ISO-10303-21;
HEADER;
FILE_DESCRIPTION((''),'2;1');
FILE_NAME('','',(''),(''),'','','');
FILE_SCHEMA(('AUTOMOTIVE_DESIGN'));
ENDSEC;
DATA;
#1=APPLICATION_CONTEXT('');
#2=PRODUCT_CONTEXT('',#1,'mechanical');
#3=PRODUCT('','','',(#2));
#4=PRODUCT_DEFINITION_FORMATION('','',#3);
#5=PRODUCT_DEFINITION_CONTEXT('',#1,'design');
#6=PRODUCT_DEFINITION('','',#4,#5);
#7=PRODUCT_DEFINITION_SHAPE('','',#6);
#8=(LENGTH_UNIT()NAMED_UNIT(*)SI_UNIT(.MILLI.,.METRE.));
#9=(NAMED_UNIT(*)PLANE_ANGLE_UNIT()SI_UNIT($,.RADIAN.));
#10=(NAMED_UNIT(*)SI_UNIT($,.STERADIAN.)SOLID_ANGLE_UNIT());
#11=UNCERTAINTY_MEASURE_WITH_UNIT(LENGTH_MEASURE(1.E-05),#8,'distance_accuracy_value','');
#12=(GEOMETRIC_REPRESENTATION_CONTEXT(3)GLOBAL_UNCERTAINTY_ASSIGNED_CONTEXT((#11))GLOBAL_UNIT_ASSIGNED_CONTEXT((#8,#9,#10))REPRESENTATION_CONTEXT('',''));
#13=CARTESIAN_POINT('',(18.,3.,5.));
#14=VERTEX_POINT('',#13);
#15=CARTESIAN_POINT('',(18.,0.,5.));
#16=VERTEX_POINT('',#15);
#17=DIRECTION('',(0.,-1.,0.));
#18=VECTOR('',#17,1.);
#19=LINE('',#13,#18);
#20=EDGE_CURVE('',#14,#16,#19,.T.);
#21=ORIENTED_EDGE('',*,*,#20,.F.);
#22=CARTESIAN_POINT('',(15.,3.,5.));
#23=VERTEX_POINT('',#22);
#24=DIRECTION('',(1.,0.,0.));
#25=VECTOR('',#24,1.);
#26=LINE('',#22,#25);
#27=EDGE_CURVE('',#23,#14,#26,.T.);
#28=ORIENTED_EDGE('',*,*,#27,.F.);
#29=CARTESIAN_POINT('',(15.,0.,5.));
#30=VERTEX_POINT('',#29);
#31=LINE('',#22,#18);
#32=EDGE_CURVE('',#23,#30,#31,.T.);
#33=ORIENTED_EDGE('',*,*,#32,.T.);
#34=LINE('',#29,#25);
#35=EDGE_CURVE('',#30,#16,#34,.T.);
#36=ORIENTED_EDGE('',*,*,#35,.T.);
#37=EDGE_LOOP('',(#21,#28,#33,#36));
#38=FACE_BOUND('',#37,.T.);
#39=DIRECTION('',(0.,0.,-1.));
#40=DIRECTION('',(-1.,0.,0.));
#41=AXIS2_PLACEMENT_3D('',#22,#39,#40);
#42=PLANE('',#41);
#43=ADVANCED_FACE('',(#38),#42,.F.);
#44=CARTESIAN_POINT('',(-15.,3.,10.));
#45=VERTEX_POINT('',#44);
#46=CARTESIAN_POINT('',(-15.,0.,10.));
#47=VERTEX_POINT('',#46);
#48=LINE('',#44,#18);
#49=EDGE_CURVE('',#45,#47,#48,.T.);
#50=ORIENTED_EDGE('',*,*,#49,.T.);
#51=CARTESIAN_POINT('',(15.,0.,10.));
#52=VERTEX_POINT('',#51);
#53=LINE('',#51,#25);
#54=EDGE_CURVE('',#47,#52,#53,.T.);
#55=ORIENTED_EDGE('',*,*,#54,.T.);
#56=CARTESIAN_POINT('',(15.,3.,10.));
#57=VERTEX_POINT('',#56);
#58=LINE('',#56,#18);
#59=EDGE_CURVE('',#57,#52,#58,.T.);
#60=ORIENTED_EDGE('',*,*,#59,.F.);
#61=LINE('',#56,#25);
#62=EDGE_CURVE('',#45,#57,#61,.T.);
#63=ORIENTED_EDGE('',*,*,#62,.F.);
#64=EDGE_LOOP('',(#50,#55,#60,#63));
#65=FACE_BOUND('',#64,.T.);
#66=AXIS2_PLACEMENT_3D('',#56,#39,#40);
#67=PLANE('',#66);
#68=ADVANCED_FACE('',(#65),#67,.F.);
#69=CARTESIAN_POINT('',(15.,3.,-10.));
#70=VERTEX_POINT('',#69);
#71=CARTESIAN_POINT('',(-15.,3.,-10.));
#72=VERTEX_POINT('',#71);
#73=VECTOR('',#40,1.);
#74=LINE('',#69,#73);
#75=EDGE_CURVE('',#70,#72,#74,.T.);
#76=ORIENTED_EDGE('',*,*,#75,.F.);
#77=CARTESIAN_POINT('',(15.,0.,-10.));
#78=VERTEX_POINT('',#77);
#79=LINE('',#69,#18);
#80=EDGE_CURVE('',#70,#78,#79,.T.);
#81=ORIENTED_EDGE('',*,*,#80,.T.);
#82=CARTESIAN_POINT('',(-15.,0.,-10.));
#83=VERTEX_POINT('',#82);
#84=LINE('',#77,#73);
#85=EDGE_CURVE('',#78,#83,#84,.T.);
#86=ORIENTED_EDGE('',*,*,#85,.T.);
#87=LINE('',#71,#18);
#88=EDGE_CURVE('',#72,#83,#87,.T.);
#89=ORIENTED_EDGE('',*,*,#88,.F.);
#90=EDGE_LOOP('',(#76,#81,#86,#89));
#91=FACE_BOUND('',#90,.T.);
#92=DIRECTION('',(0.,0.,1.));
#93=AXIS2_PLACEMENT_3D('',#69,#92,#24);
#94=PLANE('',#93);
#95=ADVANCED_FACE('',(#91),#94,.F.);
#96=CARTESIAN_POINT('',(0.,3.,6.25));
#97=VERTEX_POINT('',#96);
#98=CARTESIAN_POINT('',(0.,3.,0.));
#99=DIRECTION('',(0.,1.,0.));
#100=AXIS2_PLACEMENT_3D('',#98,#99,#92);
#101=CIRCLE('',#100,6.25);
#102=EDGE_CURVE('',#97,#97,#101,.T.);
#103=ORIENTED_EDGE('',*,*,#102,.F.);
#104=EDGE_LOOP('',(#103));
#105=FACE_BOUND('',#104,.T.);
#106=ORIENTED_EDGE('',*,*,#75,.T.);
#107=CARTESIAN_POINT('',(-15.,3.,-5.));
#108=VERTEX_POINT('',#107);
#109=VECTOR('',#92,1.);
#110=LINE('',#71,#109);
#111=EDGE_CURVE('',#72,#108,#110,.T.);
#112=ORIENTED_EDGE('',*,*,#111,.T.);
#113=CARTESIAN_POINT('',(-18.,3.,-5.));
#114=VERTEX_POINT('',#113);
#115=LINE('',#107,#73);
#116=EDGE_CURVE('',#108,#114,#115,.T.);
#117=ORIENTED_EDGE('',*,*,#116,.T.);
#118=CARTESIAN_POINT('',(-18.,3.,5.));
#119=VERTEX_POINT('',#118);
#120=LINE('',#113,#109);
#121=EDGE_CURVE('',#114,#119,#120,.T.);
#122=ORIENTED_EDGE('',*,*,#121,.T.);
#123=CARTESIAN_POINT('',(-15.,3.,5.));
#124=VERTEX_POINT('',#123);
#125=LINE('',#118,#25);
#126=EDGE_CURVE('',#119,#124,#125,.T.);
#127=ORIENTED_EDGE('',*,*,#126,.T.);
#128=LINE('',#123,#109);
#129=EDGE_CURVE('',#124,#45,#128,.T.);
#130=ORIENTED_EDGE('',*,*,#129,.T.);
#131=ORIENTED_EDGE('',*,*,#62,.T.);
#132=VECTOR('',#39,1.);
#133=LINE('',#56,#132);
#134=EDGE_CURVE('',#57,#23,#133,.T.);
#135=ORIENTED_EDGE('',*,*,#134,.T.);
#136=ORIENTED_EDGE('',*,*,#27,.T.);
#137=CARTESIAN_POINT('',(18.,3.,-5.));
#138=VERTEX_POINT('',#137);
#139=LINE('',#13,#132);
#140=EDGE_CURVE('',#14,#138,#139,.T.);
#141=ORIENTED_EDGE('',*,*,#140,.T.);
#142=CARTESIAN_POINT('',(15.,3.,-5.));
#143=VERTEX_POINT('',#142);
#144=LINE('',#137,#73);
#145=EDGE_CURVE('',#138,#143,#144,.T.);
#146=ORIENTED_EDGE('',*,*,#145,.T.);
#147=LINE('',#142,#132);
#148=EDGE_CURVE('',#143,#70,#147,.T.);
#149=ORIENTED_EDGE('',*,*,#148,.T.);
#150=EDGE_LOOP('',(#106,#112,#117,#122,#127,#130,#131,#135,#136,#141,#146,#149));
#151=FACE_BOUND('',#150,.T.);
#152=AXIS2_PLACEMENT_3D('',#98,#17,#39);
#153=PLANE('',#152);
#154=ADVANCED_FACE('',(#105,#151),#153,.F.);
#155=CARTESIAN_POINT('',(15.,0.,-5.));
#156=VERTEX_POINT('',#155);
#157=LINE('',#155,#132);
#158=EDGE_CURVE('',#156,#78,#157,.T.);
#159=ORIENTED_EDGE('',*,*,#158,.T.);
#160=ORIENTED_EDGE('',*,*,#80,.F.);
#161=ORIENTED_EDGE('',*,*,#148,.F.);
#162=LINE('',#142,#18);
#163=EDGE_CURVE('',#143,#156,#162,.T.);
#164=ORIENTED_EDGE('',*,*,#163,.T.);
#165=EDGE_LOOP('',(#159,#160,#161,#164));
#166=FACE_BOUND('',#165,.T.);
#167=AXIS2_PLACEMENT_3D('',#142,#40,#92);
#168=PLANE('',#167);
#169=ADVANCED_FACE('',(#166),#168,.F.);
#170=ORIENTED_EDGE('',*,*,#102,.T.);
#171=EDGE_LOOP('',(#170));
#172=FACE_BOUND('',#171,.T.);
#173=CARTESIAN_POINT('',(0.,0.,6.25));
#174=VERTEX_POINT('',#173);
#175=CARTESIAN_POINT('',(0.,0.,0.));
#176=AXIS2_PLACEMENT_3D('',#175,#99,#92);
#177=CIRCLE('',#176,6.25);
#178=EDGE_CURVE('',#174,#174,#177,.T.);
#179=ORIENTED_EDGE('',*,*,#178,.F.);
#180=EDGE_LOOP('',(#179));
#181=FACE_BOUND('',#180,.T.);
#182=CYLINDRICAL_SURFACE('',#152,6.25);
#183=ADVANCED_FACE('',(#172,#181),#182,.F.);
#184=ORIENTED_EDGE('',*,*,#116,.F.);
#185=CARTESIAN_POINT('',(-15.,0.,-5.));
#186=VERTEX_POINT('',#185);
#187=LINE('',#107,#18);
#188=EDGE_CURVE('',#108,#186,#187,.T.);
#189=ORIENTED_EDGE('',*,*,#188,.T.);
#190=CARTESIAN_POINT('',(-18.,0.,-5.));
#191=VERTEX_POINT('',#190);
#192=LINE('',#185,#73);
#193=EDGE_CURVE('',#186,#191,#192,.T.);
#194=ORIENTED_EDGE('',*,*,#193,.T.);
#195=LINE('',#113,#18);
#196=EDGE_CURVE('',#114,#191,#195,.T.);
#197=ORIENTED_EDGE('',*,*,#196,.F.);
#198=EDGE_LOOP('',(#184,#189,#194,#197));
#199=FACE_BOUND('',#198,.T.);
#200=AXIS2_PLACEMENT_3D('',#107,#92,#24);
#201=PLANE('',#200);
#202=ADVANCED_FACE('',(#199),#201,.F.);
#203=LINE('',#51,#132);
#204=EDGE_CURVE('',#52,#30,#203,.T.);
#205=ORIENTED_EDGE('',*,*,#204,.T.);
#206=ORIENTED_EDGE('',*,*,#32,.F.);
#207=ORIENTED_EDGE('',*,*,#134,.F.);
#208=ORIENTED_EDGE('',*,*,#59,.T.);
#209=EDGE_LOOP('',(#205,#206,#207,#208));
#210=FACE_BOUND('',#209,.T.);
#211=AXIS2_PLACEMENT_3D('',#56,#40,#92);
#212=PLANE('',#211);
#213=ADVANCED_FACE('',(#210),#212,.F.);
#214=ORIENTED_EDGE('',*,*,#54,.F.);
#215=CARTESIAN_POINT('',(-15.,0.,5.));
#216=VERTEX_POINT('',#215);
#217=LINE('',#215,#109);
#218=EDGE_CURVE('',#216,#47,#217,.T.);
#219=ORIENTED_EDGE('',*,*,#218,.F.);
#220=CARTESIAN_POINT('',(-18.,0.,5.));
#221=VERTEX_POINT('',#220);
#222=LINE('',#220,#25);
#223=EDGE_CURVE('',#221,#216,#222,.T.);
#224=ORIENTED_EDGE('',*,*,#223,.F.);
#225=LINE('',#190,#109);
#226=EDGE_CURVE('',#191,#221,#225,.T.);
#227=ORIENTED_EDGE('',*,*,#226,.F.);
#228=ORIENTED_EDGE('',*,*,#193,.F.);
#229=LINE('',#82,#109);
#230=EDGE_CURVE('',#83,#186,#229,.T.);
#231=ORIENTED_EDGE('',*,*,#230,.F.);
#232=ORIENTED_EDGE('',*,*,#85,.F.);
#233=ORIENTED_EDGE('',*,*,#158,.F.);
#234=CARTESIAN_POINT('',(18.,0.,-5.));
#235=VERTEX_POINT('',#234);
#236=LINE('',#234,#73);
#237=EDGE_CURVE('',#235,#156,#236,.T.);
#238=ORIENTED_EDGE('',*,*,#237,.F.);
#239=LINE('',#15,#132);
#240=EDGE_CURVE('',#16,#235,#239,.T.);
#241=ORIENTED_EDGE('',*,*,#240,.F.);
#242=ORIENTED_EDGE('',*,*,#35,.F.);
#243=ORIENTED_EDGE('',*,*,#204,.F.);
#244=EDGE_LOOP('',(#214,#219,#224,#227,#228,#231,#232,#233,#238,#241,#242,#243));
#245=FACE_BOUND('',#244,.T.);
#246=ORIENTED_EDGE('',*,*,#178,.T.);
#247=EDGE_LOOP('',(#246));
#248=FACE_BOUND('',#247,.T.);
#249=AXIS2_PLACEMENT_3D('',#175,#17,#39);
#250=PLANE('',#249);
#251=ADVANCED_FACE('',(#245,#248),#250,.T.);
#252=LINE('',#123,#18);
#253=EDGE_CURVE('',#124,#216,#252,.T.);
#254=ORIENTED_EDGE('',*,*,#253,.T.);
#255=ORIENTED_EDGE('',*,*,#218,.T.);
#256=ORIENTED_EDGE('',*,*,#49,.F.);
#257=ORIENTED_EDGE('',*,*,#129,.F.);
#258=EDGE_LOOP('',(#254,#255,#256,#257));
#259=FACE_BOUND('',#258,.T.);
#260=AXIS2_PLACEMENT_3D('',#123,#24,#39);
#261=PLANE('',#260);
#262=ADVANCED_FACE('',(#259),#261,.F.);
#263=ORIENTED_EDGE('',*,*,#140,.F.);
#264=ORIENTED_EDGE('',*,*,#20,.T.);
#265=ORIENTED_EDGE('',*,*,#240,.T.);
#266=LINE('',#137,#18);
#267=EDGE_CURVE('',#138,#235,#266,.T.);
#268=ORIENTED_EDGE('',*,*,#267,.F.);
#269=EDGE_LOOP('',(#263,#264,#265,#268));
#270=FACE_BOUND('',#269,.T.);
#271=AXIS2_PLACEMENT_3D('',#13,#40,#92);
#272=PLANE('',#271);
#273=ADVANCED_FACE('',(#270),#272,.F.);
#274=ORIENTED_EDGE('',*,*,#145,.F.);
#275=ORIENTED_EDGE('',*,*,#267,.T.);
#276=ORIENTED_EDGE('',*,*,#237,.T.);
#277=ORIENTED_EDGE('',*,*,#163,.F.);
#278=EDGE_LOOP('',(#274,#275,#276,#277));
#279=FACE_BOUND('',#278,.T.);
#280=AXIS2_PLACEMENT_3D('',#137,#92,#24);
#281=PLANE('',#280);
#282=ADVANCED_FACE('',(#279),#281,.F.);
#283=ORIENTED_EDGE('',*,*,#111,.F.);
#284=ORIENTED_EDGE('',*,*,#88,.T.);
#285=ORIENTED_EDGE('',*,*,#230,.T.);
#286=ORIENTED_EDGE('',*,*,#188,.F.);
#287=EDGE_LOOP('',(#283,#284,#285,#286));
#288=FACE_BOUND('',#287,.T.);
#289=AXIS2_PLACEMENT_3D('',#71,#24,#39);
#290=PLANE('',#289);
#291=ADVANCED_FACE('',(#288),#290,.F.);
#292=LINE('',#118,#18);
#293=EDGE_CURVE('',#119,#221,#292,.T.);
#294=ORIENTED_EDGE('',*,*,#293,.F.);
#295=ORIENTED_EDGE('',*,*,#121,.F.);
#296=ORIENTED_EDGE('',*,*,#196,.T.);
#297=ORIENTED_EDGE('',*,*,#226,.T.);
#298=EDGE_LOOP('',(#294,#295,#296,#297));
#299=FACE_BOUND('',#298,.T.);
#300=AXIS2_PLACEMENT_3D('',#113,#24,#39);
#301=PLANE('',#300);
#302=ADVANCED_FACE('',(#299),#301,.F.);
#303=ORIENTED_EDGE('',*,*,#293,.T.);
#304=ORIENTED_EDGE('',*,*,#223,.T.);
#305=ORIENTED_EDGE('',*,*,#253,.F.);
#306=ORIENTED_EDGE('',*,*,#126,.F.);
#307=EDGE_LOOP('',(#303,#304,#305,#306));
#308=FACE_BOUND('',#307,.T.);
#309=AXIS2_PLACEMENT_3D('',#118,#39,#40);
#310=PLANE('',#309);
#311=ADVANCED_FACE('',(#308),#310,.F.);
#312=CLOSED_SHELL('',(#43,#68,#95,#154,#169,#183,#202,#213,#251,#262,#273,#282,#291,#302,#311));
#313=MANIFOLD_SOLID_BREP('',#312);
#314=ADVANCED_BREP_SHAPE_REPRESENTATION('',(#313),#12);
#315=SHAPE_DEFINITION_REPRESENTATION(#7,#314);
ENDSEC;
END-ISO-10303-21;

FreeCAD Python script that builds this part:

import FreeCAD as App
import Part
import Sketcher


def add_polygon(sketch, points):
    """Adds a closed chain of lines whose ends are joined by coincident constraints."""
    first, n = sketch.GeometryCount, len(points)
    for a, b in zip(points, points[1:] + points[:1]):
        sketch.addGeometry(Part.LineSegment(App.Vector(*a, 0), App.Vector(*b, 0)), False)
    for i in range(n):
        sketch.addConstraint(Sketcher.Constraint("Coincident", first + i, 2, first + (i + 1) % n, 1))

doc = App.newDocument("Part")
body = doc.addObject("PartDesign::Body", "Body")

sketch1 = body.newObject("Sketcher::SketchObject", "Sketch")
sketch1.AttachmentSupport = (doc.getObject("XZ_Plane"), [""])
sketch1.MapMode = "FlatFace"
add_polygon(sketch1, [(-15, -10), (-15, -5), (-18, -5), (-18, 5), (-15, 5), (-15, 10), (15, 10), (15, 5), (18, 5), (18, -5), (15, -5), (15, -10)])
sketch1.addGeometry(Part.Circle(App.Vector(0, 0, 0), App.Vector(0, 0, 1), 6.25), False)
sketch1.addConstraint(Sketcher.Constraint("Vertical", 0))
sketch1.addConstraint(Sketcher.Constraint("Horizontal", 1))
sketch1.addConstraint(Sketcher.Constraint("Vertical", 2))
sketch1.addConstraint(Sketcher.Constraint("Horizontal", 3))
sketch1.addConstraint(Sketcher.Constraint("Vertical", 4))
sketch1.addConstraint(Sketcher.Constraint("Horizontal", 5))
sketch1.addConstraint(Sketcher.Constraint("Vertical", 6))
sketch1.addConstraint(Sketcher.Constraint("Horizontal", 7))
sketch1.addConstraint(Sketcher.Constraint("Vertical", 8))
sketch1.addConstraint(Sketcher.Constraint("Horizontal", 9))
sketch1.addConstraint(Sketcher.Constraint("Vertical", 10))
sketch1.addConstraint(Sketcher.Constraint("Horizontal", 11))
sketch1.addConstraint(Sketcher.Constraint("Coincident", 12, 3, -1, 1))
sketch1.addConstraint(Sketcher.Constraint("Symmetric", 0, 2, 6, 2, -1, 1))
sketch1.addConstraint(Sketcher.Constraint("Symmetric", 2, 2, 8, 2, -1, 1))
sketch1.addConstraint(Sketcher.Constraint("Symmetric", 4, 2, 10, 2, -1, 1))
sketch1.addConstraint(Sketcher.Constraint("Symmetric", 3, 2, 6, 2, -2))
sketch1.addConstraint(Sketcher.Constraint("Diameter", 12, 12.5))
sketch1.addConstraint(Sketcher.Constraint("DistanceX", 1, 2, 1, 1, 3.0))
sketch1.addConstraint(Sketcher.Constraint("DistanceX", 5, 1, 5, 2, 30.0))
sketch1.addConstraint(Sketcher.Constraint("DistanceY", 0, 1, 0, 2, 5.0))
sketch1.addConstraint(Sketcher.Constraint("DistanceY", 2, 1, 2, 2, 10.0))
pad1 = body.newObject("PartDesign::Pad", "Pad")
pad1.Profile = sketch1
pad1.Length = 3
pad1.Reversed = True

doc.recompute()
